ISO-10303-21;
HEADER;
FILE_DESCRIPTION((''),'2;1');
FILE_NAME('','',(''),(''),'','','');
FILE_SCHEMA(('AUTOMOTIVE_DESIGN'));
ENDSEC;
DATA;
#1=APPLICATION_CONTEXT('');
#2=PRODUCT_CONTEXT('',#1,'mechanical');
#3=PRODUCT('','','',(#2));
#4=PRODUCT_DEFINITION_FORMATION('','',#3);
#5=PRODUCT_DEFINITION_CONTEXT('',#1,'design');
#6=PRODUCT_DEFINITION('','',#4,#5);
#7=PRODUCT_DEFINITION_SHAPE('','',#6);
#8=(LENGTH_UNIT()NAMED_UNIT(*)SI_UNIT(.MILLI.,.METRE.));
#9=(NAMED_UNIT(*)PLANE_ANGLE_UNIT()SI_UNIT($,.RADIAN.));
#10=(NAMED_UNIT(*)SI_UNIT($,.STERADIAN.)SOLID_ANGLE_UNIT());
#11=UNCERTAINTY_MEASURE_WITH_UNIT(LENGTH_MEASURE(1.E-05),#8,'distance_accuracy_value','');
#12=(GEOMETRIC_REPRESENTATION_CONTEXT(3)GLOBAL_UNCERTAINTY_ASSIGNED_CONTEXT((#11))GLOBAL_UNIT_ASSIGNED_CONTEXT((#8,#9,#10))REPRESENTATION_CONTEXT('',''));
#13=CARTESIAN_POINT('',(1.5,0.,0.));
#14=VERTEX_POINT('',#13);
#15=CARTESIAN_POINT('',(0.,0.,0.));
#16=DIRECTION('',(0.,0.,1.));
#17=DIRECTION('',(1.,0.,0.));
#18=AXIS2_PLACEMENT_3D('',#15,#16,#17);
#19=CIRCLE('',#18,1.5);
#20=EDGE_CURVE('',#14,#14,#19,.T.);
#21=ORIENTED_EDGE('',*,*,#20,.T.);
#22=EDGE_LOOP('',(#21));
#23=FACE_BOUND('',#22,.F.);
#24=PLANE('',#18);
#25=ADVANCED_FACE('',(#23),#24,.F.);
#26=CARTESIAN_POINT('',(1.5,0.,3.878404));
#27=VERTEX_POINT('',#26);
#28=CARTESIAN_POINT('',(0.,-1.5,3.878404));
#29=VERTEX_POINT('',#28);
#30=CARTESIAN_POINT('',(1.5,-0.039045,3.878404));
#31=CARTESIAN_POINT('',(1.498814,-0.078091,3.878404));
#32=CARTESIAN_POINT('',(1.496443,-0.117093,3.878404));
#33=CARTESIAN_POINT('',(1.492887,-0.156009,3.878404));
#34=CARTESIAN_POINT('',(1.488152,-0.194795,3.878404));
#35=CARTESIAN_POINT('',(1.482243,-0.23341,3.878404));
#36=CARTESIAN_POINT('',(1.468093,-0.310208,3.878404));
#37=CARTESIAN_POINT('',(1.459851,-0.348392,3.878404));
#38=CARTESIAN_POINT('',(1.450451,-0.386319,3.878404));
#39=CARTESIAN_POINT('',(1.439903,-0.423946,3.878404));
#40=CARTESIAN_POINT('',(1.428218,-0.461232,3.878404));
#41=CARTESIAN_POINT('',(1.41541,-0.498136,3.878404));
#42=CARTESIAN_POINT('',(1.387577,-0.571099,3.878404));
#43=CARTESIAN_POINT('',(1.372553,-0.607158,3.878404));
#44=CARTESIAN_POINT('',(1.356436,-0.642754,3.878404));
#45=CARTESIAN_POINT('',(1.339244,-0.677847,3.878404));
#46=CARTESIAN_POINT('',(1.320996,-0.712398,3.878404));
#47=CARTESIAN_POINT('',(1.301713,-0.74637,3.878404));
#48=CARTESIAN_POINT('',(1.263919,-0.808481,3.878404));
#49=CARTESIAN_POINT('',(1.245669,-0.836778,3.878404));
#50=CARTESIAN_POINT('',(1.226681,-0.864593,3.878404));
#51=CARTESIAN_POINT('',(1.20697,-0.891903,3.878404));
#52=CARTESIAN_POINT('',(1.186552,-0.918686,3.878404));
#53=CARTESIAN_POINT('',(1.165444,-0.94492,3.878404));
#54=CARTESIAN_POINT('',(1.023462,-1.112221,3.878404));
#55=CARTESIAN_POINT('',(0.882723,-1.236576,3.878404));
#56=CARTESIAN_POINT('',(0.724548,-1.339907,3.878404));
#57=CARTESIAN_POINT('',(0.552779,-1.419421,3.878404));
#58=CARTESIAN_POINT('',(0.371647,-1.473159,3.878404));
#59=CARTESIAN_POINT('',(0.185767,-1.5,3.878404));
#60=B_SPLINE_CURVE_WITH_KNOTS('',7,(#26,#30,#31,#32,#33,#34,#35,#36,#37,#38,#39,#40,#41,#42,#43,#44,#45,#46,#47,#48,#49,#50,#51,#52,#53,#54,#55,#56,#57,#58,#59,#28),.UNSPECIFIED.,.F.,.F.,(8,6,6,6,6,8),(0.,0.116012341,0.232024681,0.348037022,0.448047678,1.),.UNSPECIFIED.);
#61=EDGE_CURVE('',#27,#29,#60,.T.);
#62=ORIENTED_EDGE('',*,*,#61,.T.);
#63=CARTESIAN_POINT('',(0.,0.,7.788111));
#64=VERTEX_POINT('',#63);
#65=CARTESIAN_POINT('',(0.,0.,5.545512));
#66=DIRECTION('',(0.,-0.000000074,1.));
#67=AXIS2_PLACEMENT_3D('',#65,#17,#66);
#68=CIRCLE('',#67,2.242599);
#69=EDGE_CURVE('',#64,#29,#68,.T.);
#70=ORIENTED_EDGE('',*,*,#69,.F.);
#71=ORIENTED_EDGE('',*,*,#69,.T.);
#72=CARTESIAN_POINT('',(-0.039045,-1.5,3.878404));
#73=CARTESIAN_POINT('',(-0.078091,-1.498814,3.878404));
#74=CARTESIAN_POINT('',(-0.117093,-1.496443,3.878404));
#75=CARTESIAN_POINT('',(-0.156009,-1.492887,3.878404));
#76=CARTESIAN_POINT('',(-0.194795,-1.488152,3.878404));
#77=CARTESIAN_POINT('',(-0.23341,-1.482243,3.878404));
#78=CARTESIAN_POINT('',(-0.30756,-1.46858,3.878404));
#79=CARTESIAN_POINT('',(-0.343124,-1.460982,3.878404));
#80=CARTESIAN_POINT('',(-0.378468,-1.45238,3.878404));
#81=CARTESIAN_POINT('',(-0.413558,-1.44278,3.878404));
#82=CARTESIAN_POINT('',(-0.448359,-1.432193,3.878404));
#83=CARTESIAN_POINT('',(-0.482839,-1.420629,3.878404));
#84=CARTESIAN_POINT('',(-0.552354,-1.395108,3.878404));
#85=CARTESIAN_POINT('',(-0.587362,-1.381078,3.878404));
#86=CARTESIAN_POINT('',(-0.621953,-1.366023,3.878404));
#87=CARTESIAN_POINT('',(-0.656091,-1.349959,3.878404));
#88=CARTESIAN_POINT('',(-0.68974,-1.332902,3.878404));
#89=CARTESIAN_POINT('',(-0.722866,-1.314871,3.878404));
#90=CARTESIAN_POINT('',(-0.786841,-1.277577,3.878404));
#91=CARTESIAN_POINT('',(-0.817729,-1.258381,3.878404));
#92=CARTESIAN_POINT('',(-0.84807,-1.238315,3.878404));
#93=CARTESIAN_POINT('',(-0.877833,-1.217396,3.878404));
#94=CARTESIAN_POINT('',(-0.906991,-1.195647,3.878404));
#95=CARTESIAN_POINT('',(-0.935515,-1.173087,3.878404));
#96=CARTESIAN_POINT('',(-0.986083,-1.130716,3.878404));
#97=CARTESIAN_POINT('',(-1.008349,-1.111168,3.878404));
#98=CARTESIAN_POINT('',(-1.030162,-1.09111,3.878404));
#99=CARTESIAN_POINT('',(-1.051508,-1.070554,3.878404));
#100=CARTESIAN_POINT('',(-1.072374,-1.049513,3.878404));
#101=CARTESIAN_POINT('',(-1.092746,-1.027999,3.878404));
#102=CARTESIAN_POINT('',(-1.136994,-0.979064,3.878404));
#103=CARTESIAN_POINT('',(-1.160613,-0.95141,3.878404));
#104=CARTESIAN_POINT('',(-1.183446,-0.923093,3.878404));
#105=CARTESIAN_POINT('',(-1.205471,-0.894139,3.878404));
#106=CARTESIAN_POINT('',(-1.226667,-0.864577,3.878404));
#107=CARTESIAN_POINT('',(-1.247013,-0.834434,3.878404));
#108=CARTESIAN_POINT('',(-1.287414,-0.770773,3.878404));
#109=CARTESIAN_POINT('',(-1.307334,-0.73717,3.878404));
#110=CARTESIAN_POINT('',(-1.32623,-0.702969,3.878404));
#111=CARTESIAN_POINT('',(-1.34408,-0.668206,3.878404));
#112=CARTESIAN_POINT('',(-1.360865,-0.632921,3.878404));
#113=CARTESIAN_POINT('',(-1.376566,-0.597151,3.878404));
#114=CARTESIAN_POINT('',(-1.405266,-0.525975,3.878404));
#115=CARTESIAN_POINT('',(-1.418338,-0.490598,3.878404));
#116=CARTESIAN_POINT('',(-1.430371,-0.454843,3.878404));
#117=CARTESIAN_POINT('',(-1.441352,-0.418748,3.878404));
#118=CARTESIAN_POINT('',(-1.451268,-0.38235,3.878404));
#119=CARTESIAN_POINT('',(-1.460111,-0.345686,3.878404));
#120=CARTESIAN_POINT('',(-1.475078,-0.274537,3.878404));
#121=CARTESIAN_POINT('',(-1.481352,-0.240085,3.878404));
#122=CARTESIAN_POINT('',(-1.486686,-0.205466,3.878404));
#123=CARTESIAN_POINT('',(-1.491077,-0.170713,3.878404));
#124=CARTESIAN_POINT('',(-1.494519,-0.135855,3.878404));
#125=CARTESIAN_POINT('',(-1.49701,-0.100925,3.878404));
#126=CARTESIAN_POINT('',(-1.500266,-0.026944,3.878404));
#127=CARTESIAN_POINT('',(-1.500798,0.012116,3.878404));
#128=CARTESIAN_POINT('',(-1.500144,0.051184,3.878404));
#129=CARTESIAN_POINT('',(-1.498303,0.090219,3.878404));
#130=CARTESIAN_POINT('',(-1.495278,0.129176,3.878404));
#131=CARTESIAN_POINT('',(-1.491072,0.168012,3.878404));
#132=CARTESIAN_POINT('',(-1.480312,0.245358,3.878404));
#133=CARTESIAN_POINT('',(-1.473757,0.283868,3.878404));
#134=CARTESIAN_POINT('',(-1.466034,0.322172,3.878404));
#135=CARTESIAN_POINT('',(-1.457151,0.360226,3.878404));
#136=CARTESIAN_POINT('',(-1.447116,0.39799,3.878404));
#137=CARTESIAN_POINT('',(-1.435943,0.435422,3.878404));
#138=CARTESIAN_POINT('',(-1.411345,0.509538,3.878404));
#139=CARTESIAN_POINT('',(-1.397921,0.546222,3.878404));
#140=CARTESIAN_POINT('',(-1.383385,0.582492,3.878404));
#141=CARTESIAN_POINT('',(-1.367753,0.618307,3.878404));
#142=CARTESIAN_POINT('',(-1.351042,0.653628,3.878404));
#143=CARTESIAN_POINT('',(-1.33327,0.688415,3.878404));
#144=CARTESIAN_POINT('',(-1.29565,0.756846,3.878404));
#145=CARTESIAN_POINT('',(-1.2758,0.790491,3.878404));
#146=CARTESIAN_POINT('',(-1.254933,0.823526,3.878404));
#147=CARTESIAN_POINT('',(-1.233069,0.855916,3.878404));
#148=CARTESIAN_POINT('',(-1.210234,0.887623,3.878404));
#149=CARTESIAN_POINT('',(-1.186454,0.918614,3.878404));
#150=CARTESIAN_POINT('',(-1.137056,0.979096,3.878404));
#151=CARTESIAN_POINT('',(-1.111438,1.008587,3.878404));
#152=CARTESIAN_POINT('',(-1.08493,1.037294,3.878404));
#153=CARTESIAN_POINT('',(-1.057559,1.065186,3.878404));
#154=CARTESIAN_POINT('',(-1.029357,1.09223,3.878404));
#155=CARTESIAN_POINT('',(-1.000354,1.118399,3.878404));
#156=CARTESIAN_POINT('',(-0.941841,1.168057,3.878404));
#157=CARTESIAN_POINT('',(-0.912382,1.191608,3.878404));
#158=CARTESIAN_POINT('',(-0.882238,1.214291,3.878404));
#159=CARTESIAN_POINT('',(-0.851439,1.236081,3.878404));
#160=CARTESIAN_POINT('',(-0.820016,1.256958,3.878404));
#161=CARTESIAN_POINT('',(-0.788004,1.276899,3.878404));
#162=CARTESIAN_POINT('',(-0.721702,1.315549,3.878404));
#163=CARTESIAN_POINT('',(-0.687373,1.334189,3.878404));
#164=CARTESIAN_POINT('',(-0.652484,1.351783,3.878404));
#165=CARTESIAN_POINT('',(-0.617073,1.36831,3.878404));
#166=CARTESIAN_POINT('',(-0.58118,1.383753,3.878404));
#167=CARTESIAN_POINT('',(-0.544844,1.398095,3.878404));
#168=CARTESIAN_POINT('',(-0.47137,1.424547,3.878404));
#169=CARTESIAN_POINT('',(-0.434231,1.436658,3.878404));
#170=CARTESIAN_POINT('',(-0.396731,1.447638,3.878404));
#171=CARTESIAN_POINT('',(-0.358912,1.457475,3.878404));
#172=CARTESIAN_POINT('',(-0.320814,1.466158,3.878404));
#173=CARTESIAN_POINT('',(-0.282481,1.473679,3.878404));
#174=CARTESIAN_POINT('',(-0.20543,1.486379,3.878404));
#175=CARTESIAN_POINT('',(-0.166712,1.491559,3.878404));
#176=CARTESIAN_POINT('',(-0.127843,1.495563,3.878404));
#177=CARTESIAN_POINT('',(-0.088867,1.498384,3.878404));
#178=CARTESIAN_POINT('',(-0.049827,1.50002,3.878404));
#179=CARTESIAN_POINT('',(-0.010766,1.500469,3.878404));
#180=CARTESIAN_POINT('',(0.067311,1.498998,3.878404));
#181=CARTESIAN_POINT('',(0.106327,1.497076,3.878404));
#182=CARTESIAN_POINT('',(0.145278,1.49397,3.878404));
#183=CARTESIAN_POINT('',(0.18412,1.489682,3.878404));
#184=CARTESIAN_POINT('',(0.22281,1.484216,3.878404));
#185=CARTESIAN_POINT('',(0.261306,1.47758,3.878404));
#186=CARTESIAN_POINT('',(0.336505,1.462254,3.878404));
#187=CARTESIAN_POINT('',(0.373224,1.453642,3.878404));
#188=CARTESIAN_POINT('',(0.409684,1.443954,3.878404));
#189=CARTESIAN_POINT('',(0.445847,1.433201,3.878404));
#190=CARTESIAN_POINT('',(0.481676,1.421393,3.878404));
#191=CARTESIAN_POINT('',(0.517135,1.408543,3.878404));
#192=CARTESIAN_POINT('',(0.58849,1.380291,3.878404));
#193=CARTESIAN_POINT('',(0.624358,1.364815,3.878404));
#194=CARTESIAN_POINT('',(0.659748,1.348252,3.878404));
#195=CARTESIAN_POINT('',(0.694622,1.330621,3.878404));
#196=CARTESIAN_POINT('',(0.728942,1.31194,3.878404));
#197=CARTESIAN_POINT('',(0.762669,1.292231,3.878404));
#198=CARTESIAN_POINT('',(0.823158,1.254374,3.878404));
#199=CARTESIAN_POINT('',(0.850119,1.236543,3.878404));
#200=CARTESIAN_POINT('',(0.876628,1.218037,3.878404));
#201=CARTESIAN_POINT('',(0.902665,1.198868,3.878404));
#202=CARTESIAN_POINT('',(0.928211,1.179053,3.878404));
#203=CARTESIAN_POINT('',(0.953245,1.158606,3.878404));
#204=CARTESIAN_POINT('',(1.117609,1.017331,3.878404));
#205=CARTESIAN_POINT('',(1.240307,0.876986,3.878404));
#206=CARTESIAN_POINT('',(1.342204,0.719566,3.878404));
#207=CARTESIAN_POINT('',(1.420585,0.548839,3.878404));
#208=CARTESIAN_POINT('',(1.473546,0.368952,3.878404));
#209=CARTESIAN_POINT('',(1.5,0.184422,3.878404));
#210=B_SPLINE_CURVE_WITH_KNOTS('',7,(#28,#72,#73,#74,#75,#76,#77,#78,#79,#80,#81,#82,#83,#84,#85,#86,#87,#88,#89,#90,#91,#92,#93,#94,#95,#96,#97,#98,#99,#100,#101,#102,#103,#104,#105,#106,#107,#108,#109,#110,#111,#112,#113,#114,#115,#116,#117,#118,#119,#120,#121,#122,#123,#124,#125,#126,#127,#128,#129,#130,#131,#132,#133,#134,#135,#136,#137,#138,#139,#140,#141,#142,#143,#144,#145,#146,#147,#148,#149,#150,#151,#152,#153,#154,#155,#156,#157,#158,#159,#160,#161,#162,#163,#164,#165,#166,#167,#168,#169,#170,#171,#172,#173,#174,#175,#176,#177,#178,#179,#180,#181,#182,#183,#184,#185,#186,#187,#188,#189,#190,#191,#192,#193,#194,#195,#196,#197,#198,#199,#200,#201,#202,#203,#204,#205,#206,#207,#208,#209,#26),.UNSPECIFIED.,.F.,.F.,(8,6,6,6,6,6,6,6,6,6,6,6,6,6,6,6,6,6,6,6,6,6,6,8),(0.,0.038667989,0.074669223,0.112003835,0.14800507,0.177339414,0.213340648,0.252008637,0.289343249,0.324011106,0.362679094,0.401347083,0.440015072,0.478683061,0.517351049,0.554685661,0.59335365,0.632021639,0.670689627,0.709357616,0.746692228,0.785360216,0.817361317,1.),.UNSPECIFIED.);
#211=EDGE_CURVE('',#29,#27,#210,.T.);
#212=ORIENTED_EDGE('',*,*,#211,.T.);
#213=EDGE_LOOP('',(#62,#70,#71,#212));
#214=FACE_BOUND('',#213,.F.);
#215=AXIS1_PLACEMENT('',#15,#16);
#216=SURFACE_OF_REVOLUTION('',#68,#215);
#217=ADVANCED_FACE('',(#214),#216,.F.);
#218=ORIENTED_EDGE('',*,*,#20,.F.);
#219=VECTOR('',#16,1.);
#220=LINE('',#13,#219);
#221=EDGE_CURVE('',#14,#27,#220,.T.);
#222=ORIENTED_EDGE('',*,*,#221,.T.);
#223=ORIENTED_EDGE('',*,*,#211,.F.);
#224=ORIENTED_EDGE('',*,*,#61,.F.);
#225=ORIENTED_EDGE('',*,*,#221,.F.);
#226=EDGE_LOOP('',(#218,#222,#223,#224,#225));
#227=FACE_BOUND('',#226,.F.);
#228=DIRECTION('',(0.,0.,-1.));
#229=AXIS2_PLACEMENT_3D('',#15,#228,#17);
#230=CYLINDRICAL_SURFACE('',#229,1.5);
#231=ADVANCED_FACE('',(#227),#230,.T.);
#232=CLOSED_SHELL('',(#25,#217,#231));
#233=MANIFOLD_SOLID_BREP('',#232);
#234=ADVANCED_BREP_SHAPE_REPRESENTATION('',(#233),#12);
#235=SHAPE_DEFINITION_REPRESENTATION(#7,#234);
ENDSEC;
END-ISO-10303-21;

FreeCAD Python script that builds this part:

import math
import FreeCAD as App
import Part
import Sketcher

doc = App.newDocument("Part")
body = doc.addObject("PartDesign::Body", "Body")

# Sketch on XY plane
sketch1 = doc.addObject("Sketcher::SketchObject", "Sketch")
body.addObject(sketch1)
sketch1.AttachmentSupport = (doc.XY_Plane, [""])
sketch1.MapMode = "FlatFace"
sketch1.addGeometry(Part.Circle(App.Vector(0, 0, 0), App.Vector(0, 0, 1), 1.5), False)
sketch1.addConstraint(Sketcher.Constraint("Coincident", 0, 3, -1, 1))
sketch1.addConstraint(Sketcher.Constraint("Diameter", 0, 3.0))
pad1 = doc.addObject("PartDesign::Pad", "Pad")
body.addObject(pad1)
pad1.Profile = sketch1
pad1.Length = 4

# Sketch on YZ plane
sketch2 = doc.addObject("Sketcher::SketchObject", "Sketch001")
body.addObject(sketch2)
sketch2.AttachmentSupport = (doc.YZ_Plane, [""])
sketch2.MapMode = "FlatFace"
sketch2.addGeometry(Part.ArcOfCircle(Part.Circle(App.Vector(0, 5.545512, 0), App.Vector(0, 0, 1), 2.242599), math.radians(90.000004), math.radians(234.636731)), False)
sketch2.addGeometry(Part.ArcOfCircle(Part.Circle(App.Vector(-3.081186, 1.203971, 0), App.Vector(0, 0, 1), 3.081186), math.radians(0.000018), math.radians(54.636718)), False)
sketch2.addGeometry(Part.LineSegment(App.Vector(0, 1.203972, 0), App.Vector(0, 7.788111, 0)), False)
sketch2.addConstraint(Sketcher.Constraint("Tangent", 0, 2, 1, 2))
sketch2.addConstraint(Sketcher.Constraint("Tangent", 1, 1, 2, 1))
sketch2.addConstraint(Sketcher.Constraint("Coincident", 2, 2, 0, 1))
sketch2.addConstraint(Sketcher.Constraint("Vertical", 2))
sketch2.addConstraint(Sketcher.Constraint("PointOnObject", 0, 3, -2))
sketch2.addConstraint(Sketcher.Constraint("PointOnObject", 1, 1, -2))
sketch2.addConstraint(Sketcher.Constraint("Radius", 0, 2.242599))
sketch2.addConstraint(Sketcher.Constraint("Radius", 1, 3.081186))
sketch2.addConstraint(Sketcher.Constraint("DistanceY", -1, 1, 1, 3, 1.203971))
revolution = doc.addObject("PartDesign::Revolution", "Revolution")
body.addObject(revolution)
revolution.Profile = sketch2
revolution.ReferenceAxis = (sketch2, ["V_Axis"])
revolution.Angle = 360

doc.recompute()
